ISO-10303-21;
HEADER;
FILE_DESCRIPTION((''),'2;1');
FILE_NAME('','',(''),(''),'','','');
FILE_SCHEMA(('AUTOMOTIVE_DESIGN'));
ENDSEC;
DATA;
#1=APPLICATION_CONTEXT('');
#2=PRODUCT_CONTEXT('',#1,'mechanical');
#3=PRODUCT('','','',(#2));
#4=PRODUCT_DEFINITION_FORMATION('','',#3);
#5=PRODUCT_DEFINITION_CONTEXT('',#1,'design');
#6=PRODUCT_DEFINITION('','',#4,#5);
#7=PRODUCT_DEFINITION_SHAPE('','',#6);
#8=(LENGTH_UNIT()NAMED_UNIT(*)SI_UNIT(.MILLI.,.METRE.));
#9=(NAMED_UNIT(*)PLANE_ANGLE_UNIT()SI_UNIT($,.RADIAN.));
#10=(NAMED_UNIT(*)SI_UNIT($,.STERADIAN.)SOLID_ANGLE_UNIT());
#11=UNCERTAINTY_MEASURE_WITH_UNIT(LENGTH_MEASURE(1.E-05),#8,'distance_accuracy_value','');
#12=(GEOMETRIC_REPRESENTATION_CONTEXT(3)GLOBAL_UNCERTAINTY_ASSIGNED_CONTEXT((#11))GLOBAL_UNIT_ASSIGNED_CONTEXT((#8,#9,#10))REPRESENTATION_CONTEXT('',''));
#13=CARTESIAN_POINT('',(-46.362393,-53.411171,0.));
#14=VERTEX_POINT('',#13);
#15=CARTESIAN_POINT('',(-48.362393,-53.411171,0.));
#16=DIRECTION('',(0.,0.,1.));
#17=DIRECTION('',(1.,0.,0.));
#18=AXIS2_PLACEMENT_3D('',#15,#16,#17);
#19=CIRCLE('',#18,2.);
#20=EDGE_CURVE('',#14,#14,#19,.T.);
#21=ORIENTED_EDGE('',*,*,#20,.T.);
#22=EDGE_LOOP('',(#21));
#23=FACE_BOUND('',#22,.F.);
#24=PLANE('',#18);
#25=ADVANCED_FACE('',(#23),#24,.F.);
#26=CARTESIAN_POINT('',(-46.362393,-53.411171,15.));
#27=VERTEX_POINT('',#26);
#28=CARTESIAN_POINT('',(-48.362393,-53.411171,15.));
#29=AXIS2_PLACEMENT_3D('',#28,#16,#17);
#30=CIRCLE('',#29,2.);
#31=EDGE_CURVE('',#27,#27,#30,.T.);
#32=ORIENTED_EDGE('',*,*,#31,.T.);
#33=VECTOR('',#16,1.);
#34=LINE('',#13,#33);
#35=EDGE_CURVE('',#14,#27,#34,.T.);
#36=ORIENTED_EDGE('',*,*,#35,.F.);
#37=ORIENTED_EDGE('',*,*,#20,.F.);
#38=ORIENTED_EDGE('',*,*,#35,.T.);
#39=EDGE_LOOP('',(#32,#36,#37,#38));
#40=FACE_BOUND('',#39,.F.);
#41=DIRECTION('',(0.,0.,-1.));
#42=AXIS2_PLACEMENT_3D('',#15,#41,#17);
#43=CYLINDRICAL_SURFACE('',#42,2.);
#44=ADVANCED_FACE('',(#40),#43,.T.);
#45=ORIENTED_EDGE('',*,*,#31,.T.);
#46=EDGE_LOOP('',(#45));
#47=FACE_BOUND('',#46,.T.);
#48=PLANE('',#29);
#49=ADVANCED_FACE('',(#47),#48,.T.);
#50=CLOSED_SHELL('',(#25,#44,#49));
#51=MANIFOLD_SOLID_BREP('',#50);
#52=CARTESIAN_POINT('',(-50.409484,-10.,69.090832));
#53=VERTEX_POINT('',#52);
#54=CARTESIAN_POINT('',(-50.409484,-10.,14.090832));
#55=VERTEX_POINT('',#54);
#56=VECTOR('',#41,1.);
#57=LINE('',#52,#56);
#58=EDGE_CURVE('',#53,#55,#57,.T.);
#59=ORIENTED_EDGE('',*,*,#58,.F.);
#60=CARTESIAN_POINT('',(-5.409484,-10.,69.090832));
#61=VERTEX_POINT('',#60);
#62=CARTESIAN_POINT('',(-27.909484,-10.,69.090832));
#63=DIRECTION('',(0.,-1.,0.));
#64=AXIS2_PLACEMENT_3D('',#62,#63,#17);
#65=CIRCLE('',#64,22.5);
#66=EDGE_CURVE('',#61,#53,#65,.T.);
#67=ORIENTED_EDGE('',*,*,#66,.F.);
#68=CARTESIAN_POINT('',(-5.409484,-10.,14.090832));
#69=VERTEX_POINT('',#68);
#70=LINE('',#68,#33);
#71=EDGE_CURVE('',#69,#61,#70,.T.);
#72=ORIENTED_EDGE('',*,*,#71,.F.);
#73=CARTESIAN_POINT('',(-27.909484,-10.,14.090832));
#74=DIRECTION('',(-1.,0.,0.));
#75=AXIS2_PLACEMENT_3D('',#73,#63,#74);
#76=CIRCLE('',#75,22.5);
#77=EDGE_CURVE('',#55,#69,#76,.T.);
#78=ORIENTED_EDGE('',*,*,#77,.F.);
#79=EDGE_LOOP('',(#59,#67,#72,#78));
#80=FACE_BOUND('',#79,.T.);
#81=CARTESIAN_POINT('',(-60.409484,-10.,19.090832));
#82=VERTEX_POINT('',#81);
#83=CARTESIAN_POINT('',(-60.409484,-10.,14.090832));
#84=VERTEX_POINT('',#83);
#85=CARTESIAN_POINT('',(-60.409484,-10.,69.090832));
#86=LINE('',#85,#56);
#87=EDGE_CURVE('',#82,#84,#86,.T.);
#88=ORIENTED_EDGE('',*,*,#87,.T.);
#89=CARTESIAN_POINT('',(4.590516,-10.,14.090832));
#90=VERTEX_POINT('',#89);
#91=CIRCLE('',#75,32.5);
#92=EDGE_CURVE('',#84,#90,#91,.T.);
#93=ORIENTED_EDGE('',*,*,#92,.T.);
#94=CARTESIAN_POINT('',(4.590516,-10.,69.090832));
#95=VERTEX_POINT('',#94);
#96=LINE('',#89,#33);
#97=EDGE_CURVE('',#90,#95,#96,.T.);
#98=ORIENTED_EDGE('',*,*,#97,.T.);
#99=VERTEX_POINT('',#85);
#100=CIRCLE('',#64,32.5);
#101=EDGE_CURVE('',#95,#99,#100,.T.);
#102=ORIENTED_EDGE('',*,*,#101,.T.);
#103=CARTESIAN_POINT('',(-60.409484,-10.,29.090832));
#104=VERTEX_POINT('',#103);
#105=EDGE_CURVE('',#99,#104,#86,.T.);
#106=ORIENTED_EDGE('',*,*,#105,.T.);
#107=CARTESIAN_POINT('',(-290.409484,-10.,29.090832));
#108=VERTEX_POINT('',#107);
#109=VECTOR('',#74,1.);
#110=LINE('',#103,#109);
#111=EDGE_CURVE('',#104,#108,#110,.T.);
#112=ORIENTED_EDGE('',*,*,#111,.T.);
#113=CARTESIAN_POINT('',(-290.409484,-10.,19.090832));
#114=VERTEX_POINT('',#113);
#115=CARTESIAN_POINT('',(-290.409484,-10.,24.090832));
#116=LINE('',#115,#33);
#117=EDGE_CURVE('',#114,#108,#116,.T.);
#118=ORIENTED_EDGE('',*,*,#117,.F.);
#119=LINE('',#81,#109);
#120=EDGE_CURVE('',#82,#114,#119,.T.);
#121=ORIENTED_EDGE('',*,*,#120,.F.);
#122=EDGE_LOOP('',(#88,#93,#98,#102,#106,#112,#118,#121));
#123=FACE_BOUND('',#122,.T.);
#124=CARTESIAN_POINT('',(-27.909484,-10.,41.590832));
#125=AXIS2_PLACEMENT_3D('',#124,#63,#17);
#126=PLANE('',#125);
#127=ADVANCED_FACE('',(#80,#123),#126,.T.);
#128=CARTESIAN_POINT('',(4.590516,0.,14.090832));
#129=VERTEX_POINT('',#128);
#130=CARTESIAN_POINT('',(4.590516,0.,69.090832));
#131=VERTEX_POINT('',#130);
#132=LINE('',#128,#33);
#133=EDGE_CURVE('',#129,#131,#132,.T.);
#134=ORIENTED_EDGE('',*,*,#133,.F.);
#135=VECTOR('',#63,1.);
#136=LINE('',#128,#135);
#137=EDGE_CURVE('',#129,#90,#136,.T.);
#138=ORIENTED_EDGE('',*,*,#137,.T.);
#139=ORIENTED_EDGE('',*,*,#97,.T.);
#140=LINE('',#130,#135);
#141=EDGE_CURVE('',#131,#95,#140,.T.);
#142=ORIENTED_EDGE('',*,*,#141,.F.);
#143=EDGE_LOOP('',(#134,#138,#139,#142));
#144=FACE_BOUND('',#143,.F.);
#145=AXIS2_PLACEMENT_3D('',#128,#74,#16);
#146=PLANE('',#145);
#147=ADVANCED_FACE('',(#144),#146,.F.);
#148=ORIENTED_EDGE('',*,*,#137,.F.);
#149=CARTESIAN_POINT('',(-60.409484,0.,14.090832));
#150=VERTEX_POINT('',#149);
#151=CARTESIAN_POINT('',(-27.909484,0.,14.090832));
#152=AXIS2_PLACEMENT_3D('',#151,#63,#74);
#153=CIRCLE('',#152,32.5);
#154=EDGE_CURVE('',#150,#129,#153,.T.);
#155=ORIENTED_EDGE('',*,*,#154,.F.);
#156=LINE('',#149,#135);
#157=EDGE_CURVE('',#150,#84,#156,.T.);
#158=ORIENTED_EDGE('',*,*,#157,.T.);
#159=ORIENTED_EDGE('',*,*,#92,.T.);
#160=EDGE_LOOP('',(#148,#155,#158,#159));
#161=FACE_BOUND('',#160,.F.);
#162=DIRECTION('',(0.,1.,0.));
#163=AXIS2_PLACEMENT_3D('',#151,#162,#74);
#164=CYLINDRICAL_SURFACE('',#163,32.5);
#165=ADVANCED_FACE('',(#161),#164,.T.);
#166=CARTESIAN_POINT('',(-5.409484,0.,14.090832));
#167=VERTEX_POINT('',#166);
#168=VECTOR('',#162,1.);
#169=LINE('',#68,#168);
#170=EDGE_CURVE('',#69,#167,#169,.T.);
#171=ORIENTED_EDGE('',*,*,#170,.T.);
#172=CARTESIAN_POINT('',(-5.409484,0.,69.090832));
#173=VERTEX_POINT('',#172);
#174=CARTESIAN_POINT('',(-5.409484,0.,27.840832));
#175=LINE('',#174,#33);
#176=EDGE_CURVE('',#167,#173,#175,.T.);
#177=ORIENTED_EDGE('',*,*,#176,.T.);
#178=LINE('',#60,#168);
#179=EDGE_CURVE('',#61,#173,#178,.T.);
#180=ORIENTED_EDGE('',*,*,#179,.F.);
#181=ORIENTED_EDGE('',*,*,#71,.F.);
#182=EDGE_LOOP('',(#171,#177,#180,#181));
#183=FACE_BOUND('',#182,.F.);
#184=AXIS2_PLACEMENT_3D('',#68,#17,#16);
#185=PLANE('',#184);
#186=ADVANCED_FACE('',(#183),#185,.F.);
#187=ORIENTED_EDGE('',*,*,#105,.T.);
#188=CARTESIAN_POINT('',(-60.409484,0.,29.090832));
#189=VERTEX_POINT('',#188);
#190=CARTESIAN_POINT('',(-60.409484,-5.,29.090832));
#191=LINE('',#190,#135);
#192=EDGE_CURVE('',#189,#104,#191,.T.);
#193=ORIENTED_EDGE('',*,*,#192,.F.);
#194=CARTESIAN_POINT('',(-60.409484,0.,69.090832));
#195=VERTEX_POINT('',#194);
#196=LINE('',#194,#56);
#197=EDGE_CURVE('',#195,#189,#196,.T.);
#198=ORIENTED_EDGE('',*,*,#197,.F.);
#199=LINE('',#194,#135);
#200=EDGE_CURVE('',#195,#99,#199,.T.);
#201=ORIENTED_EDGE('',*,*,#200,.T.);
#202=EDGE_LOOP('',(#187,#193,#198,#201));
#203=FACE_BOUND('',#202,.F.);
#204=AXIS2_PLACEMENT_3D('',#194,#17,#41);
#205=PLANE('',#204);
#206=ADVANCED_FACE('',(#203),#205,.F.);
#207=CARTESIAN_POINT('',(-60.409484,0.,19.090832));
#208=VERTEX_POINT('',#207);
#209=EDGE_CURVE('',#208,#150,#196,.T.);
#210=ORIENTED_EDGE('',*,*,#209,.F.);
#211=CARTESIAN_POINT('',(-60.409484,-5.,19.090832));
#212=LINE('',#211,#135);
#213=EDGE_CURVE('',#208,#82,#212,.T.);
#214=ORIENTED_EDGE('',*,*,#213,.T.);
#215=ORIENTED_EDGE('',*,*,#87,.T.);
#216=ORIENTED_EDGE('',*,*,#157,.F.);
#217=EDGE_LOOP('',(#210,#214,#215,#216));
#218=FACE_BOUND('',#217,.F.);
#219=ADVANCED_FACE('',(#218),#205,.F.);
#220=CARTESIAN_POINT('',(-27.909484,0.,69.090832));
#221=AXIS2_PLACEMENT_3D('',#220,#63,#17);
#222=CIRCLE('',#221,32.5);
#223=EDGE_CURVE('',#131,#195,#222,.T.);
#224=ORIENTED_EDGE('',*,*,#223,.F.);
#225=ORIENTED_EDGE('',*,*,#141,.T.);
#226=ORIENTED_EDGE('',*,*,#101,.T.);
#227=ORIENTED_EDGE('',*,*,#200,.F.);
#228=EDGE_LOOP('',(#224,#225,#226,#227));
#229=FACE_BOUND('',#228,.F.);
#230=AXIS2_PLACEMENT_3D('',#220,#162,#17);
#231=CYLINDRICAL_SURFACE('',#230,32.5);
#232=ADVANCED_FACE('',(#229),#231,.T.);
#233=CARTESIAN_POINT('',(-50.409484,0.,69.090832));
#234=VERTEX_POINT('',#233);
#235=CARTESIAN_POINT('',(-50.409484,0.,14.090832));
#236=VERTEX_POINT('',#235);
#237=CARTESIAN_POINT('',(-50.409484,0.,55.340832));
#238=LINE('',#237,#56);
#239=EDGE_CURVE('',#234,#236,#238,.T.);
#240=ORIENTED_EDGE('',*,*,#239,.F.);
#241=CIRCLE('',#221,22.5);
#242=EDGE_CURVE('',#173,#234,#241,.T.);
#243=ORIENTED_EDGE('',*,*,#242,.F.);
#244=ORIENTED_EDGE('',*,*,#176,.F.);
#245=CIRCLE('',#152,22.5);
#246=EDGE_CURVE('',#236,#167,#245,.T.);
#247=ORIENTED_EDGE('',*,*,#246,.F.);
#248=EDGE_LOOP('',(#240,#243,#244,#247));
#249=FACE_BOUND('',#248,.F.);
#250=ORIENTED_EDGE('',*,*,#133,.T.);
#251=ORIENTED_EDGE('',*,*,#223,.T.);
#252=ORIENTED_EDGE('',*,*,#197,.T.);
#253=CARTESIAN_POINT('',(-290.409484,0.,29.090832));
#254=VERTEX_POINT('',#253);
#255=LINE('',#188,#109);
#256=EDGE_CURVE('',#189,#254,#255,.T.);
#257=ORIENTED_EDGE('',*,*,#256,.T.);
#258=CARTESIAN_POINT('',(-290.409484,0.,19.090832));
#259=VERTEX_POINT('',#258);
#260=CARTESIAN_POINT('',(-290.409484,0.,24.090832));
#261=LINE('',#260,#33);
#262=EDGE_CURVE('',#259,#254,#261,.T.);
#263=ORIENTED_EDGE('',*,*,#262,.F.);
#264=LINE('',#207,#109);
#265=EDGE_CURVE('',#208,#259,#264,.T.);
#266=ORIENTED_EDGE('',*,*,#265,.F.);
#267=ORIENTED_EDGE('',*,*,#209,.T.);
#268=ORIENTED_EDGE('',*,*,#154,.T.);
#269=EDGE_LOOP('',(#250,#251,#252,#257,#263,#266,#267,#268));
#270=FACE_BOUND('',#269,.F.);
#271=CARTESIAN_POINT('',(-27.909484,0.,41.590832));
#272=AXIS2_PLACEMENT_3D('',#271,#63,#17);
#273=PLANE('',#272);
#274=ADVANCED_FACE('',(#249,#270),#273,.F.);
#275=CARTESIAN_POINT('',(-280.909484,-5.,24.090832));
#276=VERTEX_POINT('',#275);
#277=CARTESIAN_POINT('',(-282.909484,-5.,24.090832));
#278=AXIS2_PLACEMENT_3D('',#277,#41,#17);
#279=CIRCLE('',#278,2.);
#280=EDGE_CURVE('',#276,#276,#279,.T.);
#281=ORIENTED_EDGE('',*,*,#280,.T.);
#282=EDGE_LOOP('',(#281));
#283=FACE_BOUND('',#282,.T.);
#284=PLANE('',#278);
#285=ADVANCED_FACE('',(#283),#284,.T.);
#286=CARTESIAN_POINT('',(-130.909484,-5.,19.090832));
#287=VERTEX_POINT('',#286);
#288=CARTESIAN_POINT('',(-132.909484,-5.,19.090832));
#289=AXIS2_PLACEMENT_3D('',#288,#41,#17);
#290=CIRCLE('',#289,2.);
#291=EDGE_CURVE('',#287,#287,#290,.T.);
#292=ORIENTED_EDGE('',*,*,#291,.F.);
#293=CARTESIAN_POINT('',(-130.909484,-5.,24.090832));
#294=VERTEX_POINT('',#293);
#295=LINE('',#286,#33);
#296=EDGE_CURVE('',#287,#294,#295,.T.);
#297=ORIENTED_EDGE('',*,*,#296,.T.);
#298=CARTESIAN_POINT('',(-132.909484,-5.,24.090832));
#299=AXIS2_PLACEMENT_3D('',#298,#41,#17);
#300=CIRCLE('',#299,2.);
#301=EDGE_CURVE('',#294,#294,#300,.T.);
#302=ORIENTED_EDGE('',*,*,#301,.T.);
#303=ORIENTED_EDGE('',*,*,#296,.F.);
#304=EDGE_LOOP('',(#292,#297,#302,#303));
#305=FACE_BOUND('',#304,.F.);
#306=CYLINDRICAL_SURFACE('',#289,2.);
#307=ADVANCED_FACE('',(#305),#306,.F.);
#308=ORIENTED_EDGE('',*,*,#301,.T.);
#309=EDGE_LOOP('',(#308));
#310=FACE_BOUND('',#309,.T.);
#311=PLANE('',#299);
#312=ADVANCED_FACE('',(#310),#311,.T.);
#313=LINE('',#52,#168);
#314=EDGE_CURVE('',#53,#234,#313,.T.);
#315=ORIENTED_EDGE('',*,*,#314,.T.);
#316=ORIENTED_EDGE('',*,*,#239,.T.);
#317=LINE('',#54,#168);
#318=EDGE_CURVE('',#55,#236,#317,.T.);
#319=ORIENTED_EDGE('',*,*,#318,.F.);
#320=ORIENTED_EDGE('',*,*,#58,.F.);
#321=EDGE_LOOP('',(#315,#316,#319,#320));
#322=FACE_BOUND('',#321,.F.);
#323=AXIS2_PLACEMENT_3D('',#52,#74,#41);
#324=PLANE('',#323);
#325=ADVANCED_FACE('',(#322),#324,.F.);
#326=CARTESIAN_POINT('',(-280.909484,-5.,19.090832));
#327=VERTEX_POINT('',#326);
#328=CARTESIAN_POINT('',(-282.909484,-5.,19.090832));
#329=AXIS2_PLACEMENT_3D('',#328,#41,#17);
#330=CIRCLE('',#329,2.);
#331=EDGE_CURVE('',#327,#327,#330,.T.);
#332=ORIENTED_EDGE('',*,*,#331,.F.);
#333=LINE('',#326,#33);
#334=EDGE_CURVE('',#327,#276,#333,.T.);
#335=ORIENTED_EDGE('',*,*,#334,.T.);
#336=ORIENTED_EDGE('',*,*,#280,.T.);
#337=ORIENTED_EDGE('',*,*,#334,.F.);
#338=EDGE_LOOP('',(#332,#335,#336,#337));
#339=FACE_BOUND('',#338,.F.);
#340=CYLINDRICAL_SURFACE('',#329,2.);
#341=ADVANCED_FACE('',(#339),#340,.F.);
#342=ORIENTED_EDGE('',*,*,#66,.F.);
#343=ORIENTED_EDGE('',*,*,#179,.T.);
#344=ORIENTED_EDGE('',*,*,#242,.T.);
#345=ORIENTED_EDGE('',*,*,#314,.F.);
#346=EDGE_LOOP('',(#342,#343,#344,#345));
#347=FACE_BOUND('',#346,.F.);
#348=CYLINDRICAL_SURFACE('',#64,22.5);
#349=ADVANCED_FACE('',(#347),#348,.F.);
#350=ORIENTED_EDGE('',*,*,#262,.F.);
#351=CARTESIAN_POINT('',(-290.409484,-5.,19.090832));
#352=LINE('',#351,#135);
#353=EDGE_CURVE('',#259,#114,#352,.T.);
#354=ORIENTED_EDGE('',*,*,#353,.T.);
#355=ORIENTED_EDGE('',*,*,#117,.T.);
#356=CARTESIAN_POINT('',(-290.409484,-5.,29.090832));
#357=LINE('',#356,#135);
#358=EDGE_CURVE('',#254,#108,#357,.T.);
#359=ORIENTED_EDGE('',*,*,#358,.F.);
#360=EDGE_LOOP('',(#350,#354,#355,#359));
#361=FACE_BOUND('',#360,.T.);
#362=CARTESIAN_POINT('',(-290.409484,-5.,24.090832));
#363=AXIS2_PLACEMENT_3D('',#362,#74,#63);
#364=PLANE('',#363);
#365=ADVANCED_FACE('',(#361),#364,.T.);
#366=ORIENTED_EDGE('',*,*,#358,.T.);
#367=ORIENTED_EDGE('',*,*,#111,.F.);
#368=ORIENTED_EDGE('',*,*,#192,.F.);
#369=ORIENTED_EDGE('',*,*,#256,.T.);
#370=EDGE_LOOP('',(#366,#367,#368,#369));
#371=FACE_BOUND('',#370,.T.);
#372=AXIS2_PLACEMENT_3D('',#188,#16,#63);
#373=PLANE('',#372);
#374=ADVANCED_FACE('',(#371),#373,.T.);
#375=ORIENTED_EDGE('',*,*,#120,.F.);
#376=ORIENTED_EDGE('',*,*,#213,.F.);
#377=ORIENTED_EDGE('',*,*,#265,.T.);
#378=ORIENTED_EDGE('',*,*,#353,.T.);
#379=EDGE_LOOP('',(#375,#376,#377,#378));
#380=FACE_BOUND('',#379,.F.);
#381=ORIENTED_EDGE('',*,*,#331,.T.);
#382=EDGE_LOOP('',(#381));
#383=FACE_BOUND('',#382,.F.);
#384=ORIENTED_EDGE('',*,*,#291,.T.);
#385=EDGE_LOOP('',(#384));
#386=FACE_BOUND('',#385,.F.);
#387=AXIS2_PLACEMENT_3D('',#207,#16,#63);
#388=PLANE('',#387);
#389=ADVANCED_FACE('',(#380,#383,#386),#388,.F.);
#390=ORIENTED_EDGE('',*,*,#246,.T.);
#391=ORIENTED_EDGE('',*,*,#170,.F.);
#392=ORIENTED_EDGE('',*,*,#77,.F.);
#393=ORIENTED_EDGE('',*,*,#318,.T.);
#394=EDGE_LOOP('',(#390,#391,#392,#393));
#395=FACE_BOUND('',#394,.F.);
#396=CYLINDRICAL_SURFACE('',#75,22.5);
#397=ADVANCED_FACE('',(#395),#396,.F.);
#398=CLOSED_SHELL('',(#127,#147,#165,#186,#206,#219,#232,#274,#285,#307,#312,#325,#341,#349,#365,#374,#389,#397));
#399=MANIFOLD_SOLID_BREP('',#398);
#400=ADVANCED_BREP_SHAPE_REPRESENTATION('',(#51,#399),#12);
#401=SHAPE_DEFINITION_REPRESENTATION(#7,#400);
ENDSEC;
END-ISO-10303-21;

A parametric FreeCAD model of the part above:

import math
import FreeCAD as App
import Part
import Sketcher

doc = App.newDocument("Part")
params = doc.addObject("Spreadsheet::Sheet", "Params")
for row, (alias, value) in enumerate([
    ("sketch1_radius", "32.5 mm"),
    ("sketch1_height", "55 mm"),
    ("pad1_length", "10 mm"),
    ("sketch2_radius", "22.5 mm"),
    ("sketch2_height", "55 mm"),
    ("sketch3_width", "10 mm"),
    ("pad2_length", "230 mm"),
    ("sketch4_diameter", "4 mm"),
    ("pocket2_length", "5 mm"),
    ("sketch5_diameter", "4 mm"),
    ("pad3_length", "15 mm"),
], start=1):
    params.set(f"A{row}", alias)
    params.set(f"B{row}", "=" + value)
    params.setAlias(f"B{row}", alias)

body = doc.addObject("PartDesign::Body", "Body")

# Sketch on XZ plane
sketch1 = body.newObject("Sketcher::SketchObject", "Sketch")
sketch1.AttachmentSupport = (doc.getObject("XZ_Plane"), [""])
sketch1.MapMode = "FlatFace"
sketch1.addGeometry(Part.ArcOfCircle(Part.Circle(App.Vector(-28, 69, 0), App.Vector(0, 0, 1), 32), math.radians(0), math.radians(180)), False)
sketch1.addGeometry(Part.LineSegment(App.Vector(-60, 69, 0), App.Vector(-60, 14, 0)), False)
sketch1.addGeometry(Part.ArcOfCircle(Part.Circle(App.Vector(-28, 14, 0), App.Vector(0, 0, 1), 32), math.radians(180), math.radians(360)), False)
sketch1.addGeometry(Part.LineSegment(App.Vector(5, 14, 0), App.Vector(5, 69, 0)), False)
sketch1.addConstraint(Sketcher.Constraint("Tangent", 0, 2, 1, 1))
sketch1.addConstraint(Sketcher.Constraint("Tangent", 1, 2, 2, 1))
sketch1.addConstraint(Sketcher.Constraint("Tangent", 2, 2, 3, 1))
sketch1.addConstraint(Sketcher.Constraint("Tangent", 3, 2, 0, 1))
sketch1.addConstraint(Sketcher.Constraint("Vertical", 1))
sketch1.addConstraint(Sketcher.Constraint("Vertical", 3))
sketch1.addConstraint(Sketcher.Constraint("Radius", 0, 32.5))
sketch1.addConstraint(Sketcher.Constraint("DistanceY", 1, 2, 1, 1, 55.0))
sketch1.addConstraint(Sketcher.Constraint("DistanceX", 0, 3, -1, 1, 27.909484))
sketch1.addConstraint(Sketcher.Constraint("DistanceY", -1, 1, 0, 3, 69.090832))
sketch1.setExpression("Constraints[6]", "Params.sketch1_radius")
sketch1.setExpression("Constraints[7]", "Params.sketch1_height")
pad1 = body.newObject("PartDesign::Pad", "Pad")
pad1.Profile = sketch1
pad1.setExpression("Length", "Params.pad1_length")

# Sketch on XZ plane
sketch2 = body.newObject("Sketcher::SketchObject", "Sketch001")
sketch2.AttachmentSupport = (doc.getObject("XZ_Plane"), [""])
sketch2.MapMode = "FlatFace"
sketch2.AttachmentOffset = App.Placement(App.Vector(0, 0, 10), App.Rotation())
sketch2.addGeometry(Part.ArcOfCircle(Part.Circle(App.Vector(-28, 69, 0), App.Vector(0, 0, 1), 22), math.radians(0), math.radians(180)), False)
sketch2.addGeometry(Part.LineSegment(App.Vector(-50, 69, 0), App.Vector(-50, 14, 0)), False)
sketch2.addGeometry(Part.ArcOfCircle(Part.Circle(App.Vector(-28, 14, 0), App.Vector(0, 0, 1), 22), math.radians(180), math.radians(360)), False)
sketch2.addGeometry(Part.LineSegment(App.Vector(-5, 14, 0), App.Vector(-5, 69, 0)), False)
sketch2.addConstraint(Sketcher.Constraint("Tangent", 0, 2, 1, 1))
sketch2.addConstraint(Sketcher.Constraint("Tangent", 1, 2, 2, 1))
sketch2.addConstraint(Sketcher.Constraint("Tangent", 2, 2, 3, 1))
sketch2.addConstraint(Sketcher.Constraint("Tangent", 3, 2, 0, 1))
sketch2.addConstraint(Sketcher.Constraint("Vertical", 1))
sketch2.addConstraint(Sketcher.Constraint("Vertical", 3))
sketch2.addConstraint(Sketcher.Constraint("Radius", 0, 22.5))
sketch2.addConstraint(Sketcher.Constraint("DistanceY", 1, 2, 1, 1, 55.0))
sketch2.addConstraint(Sketcher.Constraint("DistanceX", 0, 3, -1, 1, 27.909484))
sketch2.addConstraint(Sketcher.Constraint("DistanceY", -1, 1, 0, 3, 69.090832))
sketch2.setExpression("Constraints[6]", "Params.sketch2_radius")
sketch2.setExpression("Constraints[7]", "Params.sketch2_height")
pocket1 = body.newObject("PartDesign::Pocket", "Pocket")
pocket1.Profile = sketch2
pocket1.Type = "ThroughAll"

# Sketch on YZ plane
sketch3 = body.newObject("Sketcher::SketchObject", "Sketch002")
sketch3.AttachmentSupport = (doc.getObject("YZ_Plane"), [""])
sketch3.MapMode = "FlatFace"
sketch3.AttachmentOffset = App.Placement(App.Vector(0, 0, -60.409484), App.Rotation())
sketch3.addGeometry(Part.LineSegment(App.Vector(0, 29, 0), App.Vector(0, 19, 0)), False)
sketch3.addGeometry(Part.LineSegment(App.Vector(0, 19, 0), App.Vector(-10, 19, 0)), False)
sketch3.addGeometry(Part.LineSegment(App.Vector(-10, 19, 0), App.Vector(-10, 29, 0)), False)
sketch3.addGeometry(Part.LineSegment(App.Vector(-10, 29, 0), App.Vector(0, 29, 0)), False)
sketch3.addConstraint(Sketcher.Constraint("Coincident", 0, 2, 1, 1))
sketch3.addConstraint(Sketcher.Constraint("Coincident", 1, 2, 2, 1))
sketch3.addConstraint(Sketcher.Constraint("Coincident", 2, 2, 3, 1))
sketch3.addConstraint(Sketcher.Constraint("Coincident", 3, 2, 0, 1))
sketch3.addConstraint(Sketcher.Constraint("Vertical", 0))
sketch3.addConstraint(Sketcher.Constraint("Horizontal", 1))
sketch3.addConstraint(Sketcher.Constraint("Vertical", 2))
sketch3.addConstraint(Sketcher.Constraint("Horizontal", 3))
sketch3.addConstraint(Sketcher.Constraint("PointOnObject", 0, 2, -2))
sketch3.addConstraint(Sketcher.Constraint("Equal", 3, 0))
sketch3.addConstraint(Sketcher.Constraint("DistanceX", 1, 2, 1, 1, 10.0))
sketch3.addConstraint(Sketcher.Constraint("DistanceY", -1, 1, 0, 2, 19.090832))
sketch3.setExpression("Constraints[10]", "Params.sketch3_width")
pad2 = body.newObject("PartDesign::Pad", "Pad001")
pad2.Profile = sketch3
pad2.setExpression("Length", "Params.pad2_length")
pad2.Reversed = True

# Sketch on XY plane
sketch4 = body.newObject("Sketcher::SketchObject", "Sketch003")
sketch4.AttachmentSupport = (doc.getObject("XY_Plane"), [""])
sketch4.MapMode = "FlatFace"
sketch4.AttachmentOffset = App.Placement(App.Vector(0, 0, 19.090832), App.Rotation())
sketch4.addGeometry(Part.Circle(App.Vector(-132.9, -5, 0), App.Vector(0, 0, 1), 2), False)
sketch4.addGeometry(Part.Circle(App.Vector(-282.9, -5, 0), App.Vector(0, 0, 1), 2), False)
sketch4.addConstraint(Sketcher.Constraint("Equal", 0, 1))
sketch4.addConstraint(Sketcher.Constraint("Horizontal", 0, 3, 1, 3))
sketch4.addConstraint(Sketcher.Constraint("Diameter", 0, 4.0))
sketch4.addConstraint(Sketcher.Constraint("DistanceY", 0, 3, -1, 1, 5.0))
sketch4.addConstraint(Sketcher.Constraint("DistanceX", 1, 3, 0, 3, 150.0))
sketch4.addConstraint(Sketcher.Constraint("DistanceX", 0, 3, -1, 1, 132.909484))
sketch4.setExpression("Constraints[2]", "Params.sketch4_diameter")
pocket2 = body.newObject("PartDesign::Pocket", "Pocket001")
pocket2.Profile = sketch4
pocket2.setExpression("Length", "Params.pocket2_length")
pocket2.Reversed = True
body2 = doc.addObject("PartDesign::Body", "Body001")

# Sketch on XY plane
sketch5 = body2.newObject("Sketcher::SketchObject", "Sketch004")
sketch5.AttachmentSupport = (doc.getObject("XY_Plane001"), [""])
sketch5.MapMode = "FlatFace"
sketch5.addGeometry(Part.Circle(App.Vector(-48.4, -53.4, 0), App.Vector(0, 0, 1), 2), False)
sketch5.addConstraint(Sketcher.Constraint("Diameter", 0, 4.0))
sketch5.addConstraint(Sketcher.Constraint("DistanceY", 0, 3, -1, 1, 53.411171))
sketch5.addConstraint(Sketcher.Constraint("DistanceX", 0, 3, -1, 1, 48.362393))
sketch5.setExpression("Constraints[0]", "Params.sketch5_diameter")
pad3 = body2.newObject("PartDesign::Pad", "Pad002")
pad3.Profile = sketch5
pad3.setExpression("Length", "Params.pad3_length")

doc.recompute()
